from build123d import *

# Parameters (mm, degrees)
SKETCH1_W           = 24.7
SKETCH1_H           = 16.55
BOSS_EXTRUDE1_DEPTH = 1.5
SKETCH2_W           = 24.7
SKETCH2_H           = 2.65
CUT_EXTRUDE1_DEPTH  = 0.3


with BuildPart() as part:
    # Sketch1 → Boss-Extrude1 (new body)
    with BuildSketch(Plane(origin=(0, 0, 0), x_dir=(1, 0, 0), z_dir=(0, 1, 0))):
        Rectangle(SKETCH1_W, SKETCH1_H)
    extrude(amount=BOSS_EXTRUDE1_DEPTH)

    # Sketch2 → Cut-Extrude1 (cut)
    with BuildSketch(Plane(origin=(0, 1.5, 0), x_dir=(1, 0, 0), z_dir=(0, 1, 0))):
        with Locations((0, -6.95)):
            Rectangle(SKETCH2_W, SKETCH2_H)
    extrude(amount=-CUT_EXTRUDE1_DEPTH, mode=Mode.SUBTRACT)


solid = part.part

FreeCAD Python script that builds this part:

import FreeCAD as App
import Part
import Sketcher

V = App.Vector

doc = App.newDocument("Part")
body = doc.addObject("PartDesign::Body", "Body")

sketch1 = body.newObject("Sketcher::SketchObject", "Sketch")
sketch1.AttachmentSupport = (doc.getObject("XZ_Plane"), [""])
sketch1.MapMode = "FlatFace"
sketch1.addGeometry([
    Part.LineSegment(V(-12, -8, 0), V(-12, 8, 0)),
    Part.LineSegment(V(-12, 8, 0), V(12, 8, 0)),
    Part.LineSegment(V(12, 8, 0), V(12, -8, 0)),
    Part.LineSegment(V(12, -8, 0), V(-12, -8, 0)),
], False)
sketch1.addConstraint([
    Sketcher.Constraint("Coincident", 0, 2, 1, 1),
    Sketcher.Constraint("Coincident", 1, 2, 2, 1),
    Sketcher.Constraint("Coincident", 2, 2, 3, 1),
    Sketcher.Constraint("Coincident", 3, 2, 0, 1),
    Sketcher.Constraint("Vertical", 0),
    Sketcher.Constraint("Horizontal", 1),
    Sketcher.Constraint("Vertical", 2),
    Sketcher.Constraint("Horizontal", 3),
    Sketcher.Constraint("Symmetric", 0, 2, 2, 2, -1, 1),
    Sketcher.Constraint("DistanceX", 1, 1, 1, 2, 24.7),
    Sketcher.Constraint("DistanceY", 0, 1, 0, 2, 16.55),
])
pad1 = body.newObject("PartDesign::Pad", "Pad")
pad1.Profile = sketch1
pad1.Length = 1.5
pad1.Reversed = True

sketch2 = body.newObject("Sketcher::SketchObject", "Sketch001")
sketch2.AttachmentSupport = (doc.getObject("XZ_Plane"), [""])
sketch2.MapMode = "FlatFace"
sketch2.AttachmentOffset = App.Placement(V(0, 0, -1.5), App.Rotation())
sketch2.addGeometry([
    Part.LineSegment(V(-12.3, 5.6, 0), V(-12.3, 8.3, 0)),
    Part.LineSegment(V(-12.3, 8.3, 0), V(12.3, 8.3, 0)),
    Part.LineSegment(V(12.3, 8.3, 0), V(12.3, 5.6, 0)),
    Part.LineSegment(V(12.3, 5.6, 0), V(-12.3, 5.6, 0)),
], False)
sketch2.addConstraint([
    Sketcher.Constraint("Coincident", 0, 2, 1, 1),
    Sketcher.Constraint("Coincident", 1, 2, 2, 1),
    Sketcher.Constraint("Coincident", 2, 2, 3, 1),
    Sketcher.Constraint("Coincident", 3, 2, 0, 1),
    Sketcher.Constraint("Vertical", 0),
    Sketcher.Constraint("Horizontal", 1),
    Sketcher.Constraint("Vertical", 2),
    Sketcher.Constraint("Horizontal", 3),
    Sketcher.Constraint("DistanceX", 1, 1, 1, 2, 24.7),
    Sketcher.Constraint("DistanceY", 0, 1, 0, 2, 2.65),
    Sketcher.Constraint("DistanceX", 0, 2, -1, 1, 12.35),
    Sketcher.Constraint("DistanceY", -1, 1, 0, 2, 8.275),
])
pocket1 = body.newObject("PartDesign::Pocket", "Pocket")
pocket1.Profile = sketch2
pocket1.Length = 0.3
pocket1.Reversed = True

doc.recompute()
